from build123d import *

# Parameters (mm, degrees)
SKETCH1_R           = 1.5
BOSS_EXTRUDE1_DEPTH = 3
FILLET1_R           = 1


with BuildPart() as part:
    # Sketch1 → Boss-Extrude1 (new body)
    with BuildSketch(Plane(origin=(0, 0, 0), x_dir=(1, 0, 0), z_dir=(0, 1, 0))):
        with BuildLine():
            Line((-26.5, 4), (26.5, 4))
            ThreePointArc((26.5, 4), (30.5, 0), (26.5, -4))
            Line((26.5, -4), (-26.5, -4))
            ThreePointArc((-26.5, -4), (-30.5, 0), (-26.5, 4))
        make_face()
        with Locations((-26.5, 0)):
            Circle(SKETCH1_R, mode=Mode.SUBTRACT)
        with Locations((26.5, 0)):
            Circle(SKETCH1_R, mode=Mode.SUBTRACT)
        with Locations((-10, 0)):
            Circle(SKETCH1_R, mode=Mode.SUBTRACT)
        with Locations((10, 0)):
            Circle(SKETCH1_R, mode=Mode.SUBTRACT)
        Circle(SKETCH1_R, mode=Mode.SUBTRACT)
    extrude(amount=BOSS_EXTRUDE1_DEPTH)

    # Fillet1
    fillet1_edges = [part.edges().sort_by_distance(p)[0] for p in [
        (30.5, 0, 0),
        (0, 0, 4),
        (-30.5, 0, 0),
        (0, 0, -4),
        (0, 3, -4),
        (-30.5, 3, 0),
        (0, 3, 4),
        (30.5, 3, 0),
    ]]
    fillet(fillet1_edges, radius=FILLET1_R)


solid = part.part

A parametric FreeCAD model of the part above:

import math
import FreeCAD as App
import Part
import Sketcher

V = App.Vector


def edges_at(feature, points):
    """Names of the edges that pass closest to the given points."""
    edges = feature.Shape.Edges
    near = lambda p: min(range(len(edges)), key=lambda i: edges[i].distToShape(Part.Vertex(*p))[0])
    return sorted({f"Edge{near(p) + 1}" for p in points})

doc = App.newDocument("Part")
params = doc.addObject("Spreadsheet::Sheet", "Params")
for row, (alias, value) in enumerate([
    ("sketch1_diameter", "3 mm"),
    ("sketch1_radius", "4 mm"),
    ("sketch1_width", "53 mm"),
    ("pad1_length", "3 mm"),
    ("fillet_radius", "1 mm"),
], start=1):
    params.set(f"A{row}", alias)
    params.set(f"B{row}", "=" + value)
    params.setAlias(f"B{row}", alias)

body = doc.addObject("PartDesign::Body", "Body")

# Sketch on XZ plane
sketch1 = body.newObject("Sketcher::SketchObject", "Sketch")
sketch1.AttachmentSupport = (doc.getObject("XZ_Plane"), [""])
sketch1.MapMode = "FlatFace"
sketch1.addGeometry([
    Part.LineSegment(V(26.5, -4, 0), V(-26.5, -4, 0)),  # 0
    Part.ArcOfCircle(Part.Circle(V(-26.5, 0, 0), V(0, 0, 1), 4), math.radians(90), math.radians(270)),  # 1
    Part.LineSegment(V(-26.5, 4, 0), V(26.5, 4, 0)),  # 2
    Part.ArcOfCircle(Part.Circle(V(26.5, 0, 0), V(0, 0, 1), 4), math.radians(-90), math.radians(90)),  # 3
    Part.Circle(V(26.5, 0, 0), V(0, 0, 1), 1.5),  # 4
    Part.Circle(V(10, 0, 0), V(0, 0, 1), 1.5),  # 5
    Part.Circle(V(0, 0, 0), V(0, 0, 1), 1.5),  # 6
    Part.Circle(V(-10, 0, 0), V(0, 0, 1), 1.5),  # 7
    Part.Circle(V(-26.5, 0, 0), V(0, 0, 1), 1.5),  # 8
], False)
sketch1.addConstraint([
    Sketcher.Constraint("Tangent", 0, 2, 1, 2),
    Sketcher.Constraint("Tangent", 1, 1, 2, 1),
    Sketcher.Constraint("Tangent", 2, 2, 3, 2),
    Sketcher.Constraint("Tangent", 3, 1, 0, 1),
    Sketcher.Constraint("Horizontal", 0),
    Sketcher.Constraint("Horizontal", 2),
    Sketcher.Constraint("Coincident", 6, 3, -1, 1),
    Sketcher.Constraint("Coincident", 4, 3, 3, 3),
    Sketcher.Constraint("Coincident", 8, 3, 1, 3),
    Sketcher.Constraint("Equal", 4, 5),
    Sketcher.Constraint("Equal", 5, 6),
    Sketcher.Constraint("Equal", 6, 7),
    Sketcher.Constraint("Equal", 7, 8),
    Sketcher.Constraint("Symmetric", 1, 3, 3, 3, -1, 1),
    Sketcher.Constraint("Symmetric", 5, 3, 7, 3, -1, 1),
    Sketcher.Constraint("PointOnObject", 5, 3, -1),
    Sketcher.Constraint("Diameter", 4, 3.0),
    Sketcher.Constraint("Radius", 1, 4.0),
    Sketcher.Constraint("DistanceX", 0, 2, 0, 1, 53.0),
    Sketcher.Constraint("DistanceX", -1, 1, 5, 3, 10.0),
])
sketch1.setExpression("Constraints[16]", "Params.sketch1_diameter")
sketch1.setExpression("Constraints[17]", "Params.sketch1_radius")
sketch1.setExpression("Constraints[18]", "Params.sketch1_width")
pad1 = body.newObject("PartDesign::Pad", "Pad")
pad1.Profile = sketch1
pad1.setExpression("Length", "Params.pad1_length")
pad1.Reversed = True
doc.recompute()

fillet = body.newObject("PartDesign::Fillet", "Fillet")
fillet.Base = (pad1, edges_at(pad1, [
    (30.5, 0, 0),
    (0, 0, 4),
    (-30.5, 0, 0),
    (0, 0, -4),
    (0, 3, -4),
    (-30.5, 3, 0),
    (0, 3, 4),
    (30.5, 3, 0),
]))
fillet.setExpression("Radius", "Params.fillet_radius")

doc.recompute()
